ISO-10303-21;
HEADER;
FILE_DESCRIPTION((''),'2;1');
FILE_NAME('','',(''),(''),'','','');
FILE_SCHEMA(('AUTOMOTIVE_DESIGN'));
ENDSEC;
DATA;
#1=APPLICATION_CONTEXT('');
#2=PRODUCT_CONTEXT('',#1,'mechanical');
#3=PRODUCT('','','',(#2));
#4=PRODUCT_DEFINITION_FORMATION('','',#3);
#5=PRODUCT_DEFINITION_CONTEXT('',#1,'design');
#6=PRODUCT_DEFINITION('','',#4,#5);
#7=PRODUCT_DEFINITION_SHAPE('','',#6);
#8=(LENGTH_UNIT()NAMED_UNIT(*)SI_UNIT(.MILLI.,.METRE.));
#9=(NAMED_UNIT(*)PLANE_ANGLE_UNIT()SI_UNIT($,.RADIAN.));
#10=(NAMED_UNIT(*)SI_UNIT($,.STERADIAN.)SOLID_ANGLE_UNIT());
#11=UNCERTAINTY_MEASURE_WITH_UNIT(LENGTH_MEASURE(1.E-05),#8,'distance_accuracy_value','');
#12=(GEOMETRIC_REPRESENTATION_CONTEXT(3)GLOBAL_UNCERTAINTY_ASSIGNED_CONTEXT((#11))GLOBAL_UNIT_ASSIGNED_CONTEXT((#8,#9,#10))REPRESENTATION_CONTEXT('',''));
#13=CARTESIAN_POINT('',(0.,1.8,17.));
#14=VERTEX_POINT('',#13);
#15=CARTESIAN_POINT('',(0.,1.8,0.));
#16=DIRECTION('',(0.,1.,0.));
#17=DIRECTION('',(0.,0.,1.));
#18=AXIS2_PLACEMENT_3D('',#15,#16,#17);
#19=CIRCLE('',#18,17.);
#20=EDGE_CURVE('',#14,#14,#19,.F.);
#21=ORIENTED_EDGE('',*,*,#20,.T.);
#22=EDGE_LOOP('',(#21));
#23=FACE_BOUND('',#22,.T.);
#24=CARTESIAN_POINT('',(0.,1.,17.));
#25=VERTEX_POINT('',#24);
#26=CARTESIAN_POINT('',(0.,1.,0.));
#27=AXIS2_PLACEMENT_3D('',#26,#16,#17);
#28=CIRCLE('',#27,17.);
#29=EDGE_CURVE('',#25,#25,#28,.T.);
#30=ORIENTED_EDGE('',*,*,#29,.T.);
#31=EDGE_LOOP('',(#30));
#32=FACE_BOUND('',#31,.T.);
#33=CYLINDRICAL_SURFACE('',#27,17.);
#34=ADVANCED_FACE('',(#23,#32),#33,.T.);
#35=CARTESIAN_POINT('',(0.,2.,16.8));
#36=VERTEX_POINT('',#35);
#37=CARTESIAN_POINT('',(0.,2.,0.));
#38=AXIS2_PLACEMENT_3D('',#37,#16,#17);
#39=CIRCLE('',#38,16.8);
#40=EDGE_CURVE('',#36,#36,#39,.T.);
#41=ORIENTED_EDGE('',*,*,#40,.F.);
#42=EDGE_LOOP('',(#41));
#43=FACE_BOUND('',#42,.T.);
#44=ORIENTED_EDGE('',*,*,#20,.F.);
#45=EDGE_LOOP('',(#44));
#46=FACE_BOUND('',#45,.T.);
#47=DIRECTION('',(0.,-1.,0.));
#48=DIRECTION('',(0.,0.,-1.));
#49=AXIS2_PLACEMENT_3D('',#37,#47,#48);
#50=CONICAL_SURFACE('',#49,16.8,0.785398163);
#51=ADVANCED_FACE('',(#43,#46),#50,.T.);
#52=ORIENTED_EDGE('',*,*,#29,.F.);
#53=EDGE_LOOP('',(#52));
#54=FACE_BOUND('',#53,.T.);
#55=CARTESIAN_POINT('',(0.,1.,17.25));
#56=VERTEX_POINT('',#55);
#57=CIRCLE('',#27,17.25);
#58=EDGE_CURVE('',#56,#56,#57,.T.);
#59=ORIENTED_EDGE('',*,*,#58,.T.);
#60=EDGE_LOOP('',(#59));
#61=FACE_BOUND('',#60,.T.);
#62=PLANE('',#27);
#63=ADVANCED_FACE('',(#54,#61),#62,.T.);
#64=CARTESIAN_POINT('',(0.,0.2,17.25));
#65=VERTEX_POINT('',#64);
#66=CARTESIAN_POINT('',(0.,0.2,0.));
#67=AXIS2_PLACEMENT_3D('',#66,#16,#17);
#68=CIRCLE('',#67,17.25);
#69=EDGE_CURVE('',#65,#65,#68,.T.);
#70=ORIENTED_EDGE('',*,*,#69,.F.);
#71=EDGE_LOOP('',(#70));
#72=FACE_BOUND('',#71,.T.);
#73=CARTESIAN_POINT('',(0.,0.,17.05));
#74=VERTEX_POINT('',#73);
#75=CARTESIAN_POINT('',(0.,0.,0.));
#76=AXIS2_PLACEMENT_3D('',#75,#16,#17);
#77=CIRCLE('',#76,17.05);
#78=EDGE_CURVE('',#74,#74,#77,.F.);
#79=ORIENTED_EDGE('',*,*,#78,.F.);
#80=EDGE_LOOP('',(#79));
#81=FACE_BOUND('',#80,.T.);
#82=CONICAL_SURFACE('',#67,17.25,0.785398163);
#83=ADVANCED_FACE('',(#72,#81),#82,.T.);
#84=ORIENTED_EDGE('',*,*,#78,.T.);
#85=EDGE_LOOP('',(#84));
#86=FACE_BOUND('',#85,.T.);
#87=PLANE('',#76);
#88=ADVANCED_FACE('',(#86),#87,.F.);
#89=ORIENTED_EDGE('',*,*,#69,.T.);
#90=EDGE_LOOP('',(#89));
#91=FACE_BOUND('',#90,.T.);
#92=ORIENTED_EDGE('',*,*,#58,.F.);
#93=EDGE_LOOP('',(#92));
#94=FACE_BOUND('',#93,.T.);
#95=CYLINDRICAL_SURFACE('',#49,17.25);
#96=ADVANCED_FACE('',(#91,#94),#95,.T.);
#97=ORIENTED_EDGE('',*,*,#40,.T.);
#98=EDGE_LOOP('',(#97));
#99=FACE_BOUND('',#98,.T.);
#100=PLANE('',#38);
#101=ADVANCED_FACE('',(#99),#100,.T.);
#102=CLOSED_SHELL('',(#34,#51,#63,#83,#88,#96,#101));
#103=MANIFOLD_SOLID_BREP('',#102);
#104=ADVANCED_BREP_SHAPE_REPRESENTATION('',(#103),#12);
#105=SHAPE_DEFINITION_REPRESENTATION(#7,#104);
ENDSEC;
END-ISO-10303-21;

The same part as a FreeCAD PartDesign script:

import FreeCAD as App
import Part
import Sketcher

V = App.Vector


def edges_at(feature, points):
    """Names of the edges that pass closest to the given points."""
    edges = feature.Shape.Edges
    near = lambda p: min(range(len(edges)), key=lambda i: edges[i].distToShape(Part.Vertex(*p))[0])
    return sorted({f"Edge{near(p) + 1}" for p in points})


def add_polygon(sketch, points):
    """Adds a closed chain of lines whose ends are joined by coincident constraints."""
    first, n = sketch.GeometryCount, len(points)
    for a, b in zip(points, points[1:] + points[:1]):
        sketch.addGeometry(Part.LineSegment(App.Vector(*a, 0), App.Vector(*b, 0)), False)
    for i in range(n):
        sketch.addConstraint(Sketcher.Constraint("Coincident", first + i, 2, first + (i + 1) % n, 1))

doc = App.newDocument("Part")
body = doc.addObject("PartDesign::Body", "Body")

# Sketch on XZ plane
sketch1 = body.newObject("Sketcher::SketchObject", "Sketch")
sketch1.AttachmentSupport = (doc.getObject("XZ_Plane"), [""])
sketch1.MapMode = "FlatFace"
sketch1.addGeometry(Part.Circle(V(0, 0, 0), V(0, 0, 1), 17.25), False)
sketch1.addConstraint(Sketcher.Constraint("Coincident", 0, 3, -1, 1))
sketch1.addConstraint(Sketcher.Constraint("Diameter", 0, 34.5))
pad1 = body.newObject("PartDesign::Pad", "Pad")
pad1.Profile = sketch1
pad1.Length = 2
pad1.Reversed = True

# Sketch on XZ plane
sketch2 = body.newObject("Sketcher::SketchObject", "Sketch001")
sketch2.AttachmentSupport = (doc.getObject("XZ_Plane"), [""])
sketch2.MapMode = "FlatFace"
sketch2.AttachmentOffset = App.Placement(V(0, 0, -2), App.Rotation())
add_polygon(sketch2, [(-23.133, -23.133), (-23.133, 23.133), (23.133, 23.133), (23.133, -23.133)])  # lines 0-3
sketch2.addGeometry(Part.Circle(V(0, 0, 0), V(0, 0, 1), 17), False)  # 4
sketch2.addConstraint(Sketcher.Constraint("Vertical", 0))
sketch2.addConstraint(Sketcher.Constraint("Horizontal", 1))
sketch2.addConstraint(Sketcher.Constraint("Vertical", 2))
sketch2.addConstraint(Sketcher.Constraint("Horizontal", 3))
sketch2.addConstraint(Sketcher.Constraint("Coincident", 4, 3, -1, 1))
sketch2.addConstraint(Sketcher.Constraint("Symmetric", 0, 2, 2, 2, -1, 1))
sketch2.addConstraint(Sketcher.Constraint("Equal", 3, 0))
sketch2.addConstraint(Sketcher.Constraint("Diameter", 4, 34.0))
sketch2.addConstraint(Sketcher.Constraint("DistanceX", 1, 1, 1, 2, 46.266))
pocket1 = body.newObject("PartDesign::Pocket", "Pocket")
pocket1.Profile = sketch2
pocket1.Length = 1
pocket1.Reversed = True
doc.recompute()

chamfer = body.newObject("PartDesign::Chamfer", "Chamfer")
chamfer.Base = (pocket1, edges_at(pocket1, [(0, 2, -17), (0, 0, -17.25)]))
chamfer.Size = 0.2

doc.recompute()
